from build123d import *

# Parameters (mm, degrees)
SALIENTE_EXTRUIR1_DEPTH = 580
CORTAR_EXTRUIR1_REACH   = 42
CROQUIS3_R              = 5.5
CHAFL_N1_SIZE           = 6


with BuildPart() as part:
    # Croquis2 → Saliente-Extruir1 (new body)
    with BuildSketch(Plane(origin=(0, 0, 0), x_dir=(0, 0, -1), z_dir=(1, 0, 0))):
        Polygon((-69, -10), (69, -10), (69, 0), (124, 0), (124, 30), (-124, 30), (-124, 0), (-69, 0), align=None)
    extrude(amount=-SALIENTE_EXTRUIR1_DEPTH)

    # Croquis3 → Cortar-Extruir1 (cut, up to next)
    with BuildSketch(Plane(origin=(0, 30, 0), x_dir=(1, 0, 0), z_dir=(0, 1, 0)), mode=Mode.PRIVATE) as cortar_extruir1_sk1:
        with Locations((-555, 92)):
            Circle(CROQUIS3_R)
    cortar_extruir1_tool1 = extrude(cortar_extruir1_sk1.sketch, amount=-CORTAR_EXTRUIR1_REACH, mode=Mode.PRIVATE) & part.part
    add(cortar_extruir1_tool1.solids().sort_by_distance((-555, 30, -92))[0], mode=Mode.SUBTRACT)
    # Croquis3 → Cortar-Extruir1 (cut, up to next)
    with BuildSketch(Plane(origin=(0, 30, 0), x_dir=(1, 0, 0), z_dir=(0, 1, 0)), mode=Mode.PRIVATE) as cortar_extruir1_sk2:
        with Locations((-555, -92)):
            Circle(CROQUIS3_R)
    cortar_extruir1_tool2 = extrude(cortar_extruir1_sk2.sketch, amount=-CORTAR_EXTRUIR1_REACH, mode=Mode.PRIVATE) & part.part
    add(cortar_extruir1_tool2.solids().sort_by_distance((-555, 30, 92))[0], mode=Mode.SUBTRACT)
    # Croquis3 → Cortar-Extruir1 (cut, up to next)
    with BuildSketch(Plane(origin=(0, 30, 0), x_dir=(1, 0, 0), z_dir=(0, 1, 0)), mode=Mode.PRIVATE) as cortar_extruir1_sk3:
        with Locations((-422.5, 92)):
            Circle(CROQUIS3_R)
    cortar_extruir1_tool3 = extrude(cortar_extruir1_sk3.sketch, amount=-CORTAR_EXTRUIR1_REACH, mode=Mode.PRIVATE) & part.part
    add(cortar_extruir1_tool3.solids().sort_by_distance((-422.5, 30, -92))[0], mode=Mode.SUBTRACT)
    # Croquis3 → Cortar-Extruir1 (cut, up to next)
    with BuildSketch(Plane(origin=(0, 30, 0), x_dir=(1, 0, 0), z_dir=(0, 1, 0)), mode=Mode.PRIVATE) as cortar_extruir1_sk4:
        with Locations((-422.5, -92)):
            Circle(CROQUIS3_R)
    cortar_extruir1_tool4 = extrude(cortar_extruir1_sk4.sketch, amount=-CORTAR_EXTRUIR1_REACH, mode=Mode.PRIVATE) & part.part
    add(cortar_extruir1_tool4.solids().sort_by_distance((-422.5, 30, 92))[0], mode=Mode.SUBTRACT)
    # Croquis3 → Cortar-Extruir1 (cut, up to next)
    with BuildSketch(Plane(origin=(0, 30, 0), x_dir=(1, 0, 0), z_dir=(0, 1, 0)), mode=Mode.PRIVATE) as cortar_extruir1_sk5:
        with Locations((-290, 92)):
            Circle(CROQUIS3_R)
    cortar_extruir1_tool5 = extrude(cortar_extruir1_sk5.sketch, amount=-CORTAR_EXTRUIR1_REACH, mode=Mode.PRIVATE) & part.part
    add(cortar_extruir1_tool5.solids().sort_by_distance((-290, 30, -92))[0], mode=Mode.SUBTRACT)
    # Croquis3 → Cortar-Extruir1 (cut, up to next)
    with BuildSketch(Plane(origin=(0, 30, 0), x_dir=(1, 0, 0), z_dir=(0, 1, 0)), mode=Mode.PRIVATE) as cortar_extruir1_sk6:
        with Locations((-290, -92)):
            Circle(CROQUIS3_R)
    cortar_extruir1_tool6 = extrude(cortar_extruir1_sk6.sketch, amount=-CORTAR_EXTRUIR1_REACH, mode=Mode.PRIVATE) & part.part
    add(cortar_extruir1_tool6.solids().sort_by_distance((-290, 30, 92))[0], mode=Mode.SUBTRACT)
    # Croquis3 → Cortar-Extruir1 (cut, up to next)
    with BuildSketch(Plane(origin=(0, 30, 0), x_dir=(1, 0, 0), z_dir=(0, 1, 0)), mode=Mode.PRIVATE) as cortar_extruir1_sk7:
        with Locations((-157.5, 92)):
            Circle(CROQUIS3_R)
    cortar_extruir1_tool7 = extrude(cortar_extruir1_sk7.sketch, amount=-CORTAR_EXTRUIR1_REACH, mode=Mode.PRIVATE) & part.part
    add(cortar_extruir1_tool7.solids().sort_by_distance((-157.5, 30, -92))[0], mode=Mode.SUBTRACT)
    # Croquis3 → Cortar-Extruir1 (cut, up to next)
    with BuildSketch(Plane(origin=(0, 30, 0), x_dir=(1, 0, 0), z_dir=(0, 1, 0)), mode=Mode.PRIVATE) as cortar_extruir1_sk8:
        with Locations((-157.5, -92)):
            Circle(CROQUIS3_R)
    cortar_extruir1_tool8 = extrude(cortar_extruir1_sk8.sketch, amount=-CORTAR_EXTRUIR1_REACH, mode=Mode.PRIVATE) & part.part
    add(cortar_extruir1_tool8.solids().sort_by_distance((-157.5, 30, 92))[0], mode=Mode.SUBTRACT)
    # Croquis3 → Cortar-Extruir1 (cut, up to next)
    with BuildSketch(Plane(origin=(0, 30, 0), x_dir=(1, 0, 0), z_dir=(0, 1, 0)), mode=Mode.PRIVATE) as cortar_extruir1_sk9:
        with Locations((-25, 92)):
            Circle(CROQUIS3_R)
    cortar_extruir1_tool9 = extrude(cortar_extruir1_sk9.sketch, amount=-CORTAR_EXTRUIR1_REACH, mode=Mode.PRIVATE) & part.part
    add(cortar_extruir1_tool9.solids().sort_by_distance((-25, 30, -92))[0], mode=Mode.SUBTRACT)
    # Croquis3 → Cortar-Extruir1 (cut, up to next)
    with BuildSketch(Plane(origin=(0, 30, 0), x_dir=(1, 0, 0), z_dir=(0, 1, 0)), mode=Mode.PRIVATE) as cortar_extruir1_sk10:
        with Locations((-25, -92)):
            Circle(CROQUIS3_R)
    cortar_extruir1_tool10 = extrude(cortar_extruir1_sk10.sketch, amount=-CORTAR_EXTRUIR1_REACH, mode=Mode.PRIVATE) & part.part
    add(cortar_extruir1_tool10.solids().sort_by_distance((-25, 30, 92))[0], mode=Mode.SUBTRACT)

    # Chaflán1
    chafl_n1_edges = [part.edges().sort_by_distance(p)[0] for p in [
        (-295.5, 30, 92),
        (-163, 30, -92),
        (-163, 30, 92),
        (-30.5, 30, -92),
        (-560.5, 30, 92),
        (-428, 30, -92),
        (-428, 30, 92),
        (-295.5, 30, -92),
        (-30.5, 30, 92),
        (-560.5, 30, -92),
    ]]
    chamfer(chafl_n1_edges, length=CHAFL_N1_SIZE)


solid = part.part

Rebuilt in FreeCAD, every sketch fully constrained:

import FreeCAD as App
import Part
import Sketcher


def edges_at(feature, points):
    """Names of the edges that pass closest to the given points."""
    edges = feature.Shape.Edges
    near = lambda p: min(range(len(edges)), key=lambda i: edges[i].distToShape(Part.Vertex(*p))[0])
    return sorted({f"Edge{near(p) + 1}" for p in points})


def add_polygon(sketch, points):
    """Adds a closed chain of lines whose ends are joined by coincident constraints."""
    first, n = sketch.GeometryCount, len(points)
    for a, b in zip(points, points[1:] + points[:1]):
        sketch.addGeometry(Part.LineSegment(App.Vector(*a, 0), App.Vector(*b, 0)), False)
    for i in range(n):
        sketch.addConstraint(Sketcher.Constraint("Coincident", first + i, 2, first + (i + 1) % n, 1))

doc = App.newDocument("Part")
body = doc.addObject("PartDesign::Body", "Body")

sketch1 = body.newObject("Sketcher::SketchObject", "Sketch")
sketch1.AttachmentSupport = (doc.getObject("YZ_Plane"), [""])
sketch1.MapMode = "FlatFace"
add_polygon(sketch1, [(-10, 69), (-10, -69), (0, -69), (0, -124), (30, -124), (30, 124), (0, 124), (0, 69)])
sketch1.addConstraint([
    Sketcher.Constraint("Vertical", 0),
    Sketcher.Constraint("Horizontal", 1),
    Sketcher.Constraint("Vertical", 2),
    Sketcher.Constraint("Horizontal", 3),
    Sketcher.Constraint("Vertical", 4),
    Sketcher.Constraint("Horizontal", 5),
    Sketcher.Constraint("Vertical", 6),
    Sketcher.Constraint("Horizontal", 7),
    Sketcher.Constraint("Symmetric", 2, 2, 5, 2, -1, 1),
    Sketcher.Constraint("Symmetric", 1, 2, 6, 2, -1),
    Sketcher.Constraint("DistanceX", 1, 1, 1, 2, 10.0),
    Sketcher.Constraint("DistanceX", 3, 1, 3, 2, 30.0),
    Sketcher.Constraint("DistanceY", 0, 2, 0, 1, 138.0),
    Sketcher.Constraint("DistanceY", 2, 2, 2, 1, 55.0),
])
pad1 = body.newObject("PartDesign::Pad", "Pad")
pad1.Profile = sketch1
pad1.Length = 580
pad1.Reversed = True

sketch2 = body.newObject("Sketcher::SketchObject", "Sketch001")
sketch2.AttachmentSupport = (doc.getObject("XZ_Plane"), [""])
sketch2.MapMode = "FlatFace"
sketch2.AttachmentOffset = App.Placement(App.Vector(0, 0, -30), App.Rotation())
sketch2.addGeometry(Part.Circle(App.Vector(-555, -92, 0), App.Vector(0, 0, 1), 6), False)
sketch2.addConstraint([
    Sketcher.Constraint("Diameter", 0, 11.0),
    Sketcher.Constraint("DistanceX", 0, 3, -1, 1, 555.0),
    Sketcher.Constraint("DistanceY", 0, 3, -1, 1, 92.0),
])
pocket1 = body.newObject("PartDesign::Pocket", "Pocket")
pocket1.Profile = sketch2
pocket1.Type = "UpToFirst"
pocket1.Reversed = True

sketch3 = body.newObject("Sketcher::SketchObject", "Sketch002")
sketch3.AttachmentSupport = (doc.getObject("XZ_Plane"), [""])
sketch3.MapMode = "FlatFace"
sketch3.AttachmentOffset = App.Placement(App.Vector(0, 0, -30), App.Rotation())
sketch3.addGeometry(Part.Circle(App.Vector(-555, 92, 0), App.Vector(0, 0, 1), 6), False)
sketch3.addConstraint([
    Sketcher.Constraint("Diameter", 0, 11.0),
    Sketcher.Constraint("DistanceX", 0, 3, -1, 1, 555.0),
    Sketcher.Constraint("DistanceY", -1, 1, 0, 3, 92.0),
])
pocket2 = body.newObject("PartDesign::Pocket", "Pocket001")
pocket2.Profile = sketch3
pocket2.Type = "UpToFirst"
pocket2.Reversed = True

sketch4 = body.newObject("Sketcher::SketchObject", "Sketch003")
sketch4.AttachmentSupport = (doc.getObject("XZ_Plane"), [""])
sketch4.MapMode = "FlatFace"
sketch4.AttachmentOffset = App.Placement(App.Vector(0, 0, -30), App.Rotation())
sketch4.addGeometry(Part.Circle(App.Vector(-422, -92, 0), App.Vector(0, 0, 1), 6), False)
sketch4.addConstraint([
    Sketcher.Constraint("Diameter", 0, 11.0),
    Sketcher.Constraint("DistanceY", 0, 3, -1, 1, 92.0),
    Sketcher.Constraint("DistanceX", 0, 3, -1, 1, 422.5),
])
pocket3 = body.newObject("PartDesign::Pocket", "Pocket002")
pocket3.Profile = sketch4
pocket3.Type = "UpToFirst"
pocket3.Reversed = True

sketch5 = body.newObject("Sketcher::SketchObject", "Sketch004")
sketch5.AttachmentSupport = (doc.getObject("XZ_Plane"), [""])
sketch5.MapMode = "FlatFace"
sketch5.AttachmentOffset = App.Placement(App.Vector(0, 0, -30), App.Rotation())
sketch5.addGeometry(Part.Circle(App.Vector(-422, 92, 0), App.Vector(0, 0, 1), 6), False)
sketch5.addConstraint([
    Sketcher.Constraint("Diameter", 0, 11.0),
    Sketcher.Constraint("DistanceY", -1, 1, 0, 3, 92.0),
    Sketcher.Constraint("DistanceX", 0, 3, -1, 1, 422.5),
])
pocket4 = body.newObject("PartDesign::Pocket", "Pocket003")
pocket4.Profile = sketch5
pocket4.Type = "UpToFirst"
pocket4.Reversed = True

sketch6 = body.newObject("Sketcher::SketchObject", "Sketch005")
sketch6.AttachmentSupport = (doc.getObject("XZ_Plane"), [""])
sketch6.MapMode = "FlatFace"
sketch6.AttachmentOffset = App.Placement(App.Vector(0, 0, -30), App.Rotation())
sketch6.addGeometry(Part.Circle(App.Vector(-290, -92, 0), App.Vector(0, 0, 1), 6), False)
sketch6.addConstraint([
    Sketcher.Constraint("Diameter", 0, 11.0),
    Sketcher.Constraint("DistanceX", 0, 3, -1, 1, 290.0),
    Sketcher.Constraint("DistanceY", 0, 3, -1, 1, 92.0),
])
pocket5 = body.newObject("PartDesign::Pocket", "Pocket004")
pocket5.Profile = sketch6
pocket5.Type = "UpToFirst"
pocket5.Reversed = True

sketch7 = body.newObject("Sketcher::SketchObject", "Sketch006")
sketch7.AttachmentSupport = (doc.getObject("XZ_Plane"), [""])
sketch7.MapMode = "FlatFace"
sketch7.AttachmentOffset = App.Placement(App.Vector(0, 0, -30), App.Rotation())
sketch7.addGeometry(Part.Circle(App.Vector(-290, 92, 0), App.Vector(0, 0, 1), 6), False)
sketch7.addConstraint([
    Sketcher.Constraint("Diameter", 0, 11.0),
    Sketcher.Constraint("DistanceX", 0, 3, -1, 1, 290.0),
    Sketcher.Constraint("DistanceY", -1, 1, 0, 3, 92.0),
])
pocket6 = body.newObject("PartDesign::Pocket", "Pocket005")
pocket6.Profile = sketch7
pocket6.Type = "UpToFirst"
pocket6.Reversed = True

sketch8 = body.newObject("Sketcher::SketchObject", "Sketch007")
sketch8.AttachmentSupport = (doc.getObject("XZ_Plane"), [""])
sketch8.MapMode = "FlatFace"
sketch8.AttachmentOffset = App.Placement(App.Vector(0, 0, -30), App.Rotation())
sketch8.addGeometry(Part.Circle(App.Vector(-158, -92, 0), App.Vector(0, 0, 1), 6), False)
sketch8.addConstraint([
    Sketcher.Constraint("Diameter", 0, 11.0),
    Sketcher.Constraint("DistanceY", 0, 3, -1, 1, 92.0),
    Sketcher.Constraint("DistanceX", 0, 3, -1, 1, 157.5),
])
pocket7 = body.newObject("PartDesign::Pocket", "Pocket006")
pocket7.Profile = sketch8
pocket7.Type = "UpToFirst"
pocket7.Reversed = True

sketch9 = body.newObject("Sketcher::SketchObject", "Sketch008")
sketch9.AttachmentSupport = (doc.getObject("XZ_Plane"), [""])
sketch9.MapMode = "FlatFace"
sketch9.AttachmentOffset = App.Placement(App.Vector(0, 0, -30), App.Rotation())
sketch9.addGeometry(Part.Circle(App.Vector(-158, 92, 0), App.Vector(0, 0, 1), 6), False)
sketch9.addConstraint([
    Sketcher.Constraint("Diameter", 0, 11.0),
    Sketcher.Constraint("DistanceY", -1, 1, 0, 3, 92.0),
    Sketcher.Constraint("DistanceX", 0, 3, -1, 1, 157.5),
])
pocket8 = body.newObject("PartDesign::Pocket", "Pocket007")
pocket8.Profile = sketch9
pocket8.Type = "UpToFirst"
pocket8.Reversed = True

sketch10 = body.newObject("Sketcher::SketchObject", "Sketch009")
sketch10.AttachmentSupport = (doc.getObject("XZ_Plane"), [""])
sketch10.MapMode = "FlatFace"
sketch10.AttachmentOffset = App.Placement(App.Vector(0, 0, -30), App.Rotation())
sketch10.addGeometry(Part.Circle(App.Vector(-25, -92, 0), App.Vector(0, 0, 1), 6), False)
sketch10.addConstraint([
    Sketcher.Constraint("Diameter", 0, 11.0),
    Sketcher.Constraint("DistanceX", 0, 3, -1, 1, 25.0),
    Sketcher.Constraint("DistanceY", 0, 3, -1, 1, 92.0),
])
pocket9 = body.newObject("PartDesign::Pocket", "Pocket008")
pocket9.Profile = sketch10
pocket9.Type = "UpToFirst"
pocket9.Reversed = True

sketch11 = body.newObject("Sketcher::SketchObject", "Sketch010")
sketch11.AttachmentSupport = (doc.getObject("XZ_Plane"), [""])
sketch11.MapMode = "FlatFace"
sketch11.AttachmentOffset = App.Placement(App.Vector(0, 0, -30), App.Rotation())
sketch11.addGeometry(Part.Circle(App.Vector(-25, 92, 0), App.Vector(0, 0, 1), 6), False)
sketch11.addConstraint([
    Sketcher.Constraint("Diameter", 0, 11.0),
    Sketcher.Constraint("DistanceX", 0, 3, -1, 1, 25.0),
    Sketcher.Constraint("DistanceY", -1, 1, 0, 3, 92.0),
])
pocket10 = body.newObject("PartDesign::Pocket", "Pocket009")
pocket10.Profile = sketch11
pocket10.Type = "UpToFirst"
pocket10.Reversed = True
doc.recompute()

chamfer = body.newObject("PartDesign::Chamfer", "Chamfer")
chamfer.Base = (pocket10, edges_at(pocket10, [
    (-295.5, 30, 92),
    (-163, 30, -92),
    (-163, 30, 92),
    (-30.5, 30, -92),
    (-560.5, 30, 92),
    (-428, 30, -92),
    (-428, 30, 92),
    (-295.5, 30, -92),
    (-30.5, 30, 92),
    (-560.5, 30, -92),
]))
chamfer.Size = 6

doc.recompute()
